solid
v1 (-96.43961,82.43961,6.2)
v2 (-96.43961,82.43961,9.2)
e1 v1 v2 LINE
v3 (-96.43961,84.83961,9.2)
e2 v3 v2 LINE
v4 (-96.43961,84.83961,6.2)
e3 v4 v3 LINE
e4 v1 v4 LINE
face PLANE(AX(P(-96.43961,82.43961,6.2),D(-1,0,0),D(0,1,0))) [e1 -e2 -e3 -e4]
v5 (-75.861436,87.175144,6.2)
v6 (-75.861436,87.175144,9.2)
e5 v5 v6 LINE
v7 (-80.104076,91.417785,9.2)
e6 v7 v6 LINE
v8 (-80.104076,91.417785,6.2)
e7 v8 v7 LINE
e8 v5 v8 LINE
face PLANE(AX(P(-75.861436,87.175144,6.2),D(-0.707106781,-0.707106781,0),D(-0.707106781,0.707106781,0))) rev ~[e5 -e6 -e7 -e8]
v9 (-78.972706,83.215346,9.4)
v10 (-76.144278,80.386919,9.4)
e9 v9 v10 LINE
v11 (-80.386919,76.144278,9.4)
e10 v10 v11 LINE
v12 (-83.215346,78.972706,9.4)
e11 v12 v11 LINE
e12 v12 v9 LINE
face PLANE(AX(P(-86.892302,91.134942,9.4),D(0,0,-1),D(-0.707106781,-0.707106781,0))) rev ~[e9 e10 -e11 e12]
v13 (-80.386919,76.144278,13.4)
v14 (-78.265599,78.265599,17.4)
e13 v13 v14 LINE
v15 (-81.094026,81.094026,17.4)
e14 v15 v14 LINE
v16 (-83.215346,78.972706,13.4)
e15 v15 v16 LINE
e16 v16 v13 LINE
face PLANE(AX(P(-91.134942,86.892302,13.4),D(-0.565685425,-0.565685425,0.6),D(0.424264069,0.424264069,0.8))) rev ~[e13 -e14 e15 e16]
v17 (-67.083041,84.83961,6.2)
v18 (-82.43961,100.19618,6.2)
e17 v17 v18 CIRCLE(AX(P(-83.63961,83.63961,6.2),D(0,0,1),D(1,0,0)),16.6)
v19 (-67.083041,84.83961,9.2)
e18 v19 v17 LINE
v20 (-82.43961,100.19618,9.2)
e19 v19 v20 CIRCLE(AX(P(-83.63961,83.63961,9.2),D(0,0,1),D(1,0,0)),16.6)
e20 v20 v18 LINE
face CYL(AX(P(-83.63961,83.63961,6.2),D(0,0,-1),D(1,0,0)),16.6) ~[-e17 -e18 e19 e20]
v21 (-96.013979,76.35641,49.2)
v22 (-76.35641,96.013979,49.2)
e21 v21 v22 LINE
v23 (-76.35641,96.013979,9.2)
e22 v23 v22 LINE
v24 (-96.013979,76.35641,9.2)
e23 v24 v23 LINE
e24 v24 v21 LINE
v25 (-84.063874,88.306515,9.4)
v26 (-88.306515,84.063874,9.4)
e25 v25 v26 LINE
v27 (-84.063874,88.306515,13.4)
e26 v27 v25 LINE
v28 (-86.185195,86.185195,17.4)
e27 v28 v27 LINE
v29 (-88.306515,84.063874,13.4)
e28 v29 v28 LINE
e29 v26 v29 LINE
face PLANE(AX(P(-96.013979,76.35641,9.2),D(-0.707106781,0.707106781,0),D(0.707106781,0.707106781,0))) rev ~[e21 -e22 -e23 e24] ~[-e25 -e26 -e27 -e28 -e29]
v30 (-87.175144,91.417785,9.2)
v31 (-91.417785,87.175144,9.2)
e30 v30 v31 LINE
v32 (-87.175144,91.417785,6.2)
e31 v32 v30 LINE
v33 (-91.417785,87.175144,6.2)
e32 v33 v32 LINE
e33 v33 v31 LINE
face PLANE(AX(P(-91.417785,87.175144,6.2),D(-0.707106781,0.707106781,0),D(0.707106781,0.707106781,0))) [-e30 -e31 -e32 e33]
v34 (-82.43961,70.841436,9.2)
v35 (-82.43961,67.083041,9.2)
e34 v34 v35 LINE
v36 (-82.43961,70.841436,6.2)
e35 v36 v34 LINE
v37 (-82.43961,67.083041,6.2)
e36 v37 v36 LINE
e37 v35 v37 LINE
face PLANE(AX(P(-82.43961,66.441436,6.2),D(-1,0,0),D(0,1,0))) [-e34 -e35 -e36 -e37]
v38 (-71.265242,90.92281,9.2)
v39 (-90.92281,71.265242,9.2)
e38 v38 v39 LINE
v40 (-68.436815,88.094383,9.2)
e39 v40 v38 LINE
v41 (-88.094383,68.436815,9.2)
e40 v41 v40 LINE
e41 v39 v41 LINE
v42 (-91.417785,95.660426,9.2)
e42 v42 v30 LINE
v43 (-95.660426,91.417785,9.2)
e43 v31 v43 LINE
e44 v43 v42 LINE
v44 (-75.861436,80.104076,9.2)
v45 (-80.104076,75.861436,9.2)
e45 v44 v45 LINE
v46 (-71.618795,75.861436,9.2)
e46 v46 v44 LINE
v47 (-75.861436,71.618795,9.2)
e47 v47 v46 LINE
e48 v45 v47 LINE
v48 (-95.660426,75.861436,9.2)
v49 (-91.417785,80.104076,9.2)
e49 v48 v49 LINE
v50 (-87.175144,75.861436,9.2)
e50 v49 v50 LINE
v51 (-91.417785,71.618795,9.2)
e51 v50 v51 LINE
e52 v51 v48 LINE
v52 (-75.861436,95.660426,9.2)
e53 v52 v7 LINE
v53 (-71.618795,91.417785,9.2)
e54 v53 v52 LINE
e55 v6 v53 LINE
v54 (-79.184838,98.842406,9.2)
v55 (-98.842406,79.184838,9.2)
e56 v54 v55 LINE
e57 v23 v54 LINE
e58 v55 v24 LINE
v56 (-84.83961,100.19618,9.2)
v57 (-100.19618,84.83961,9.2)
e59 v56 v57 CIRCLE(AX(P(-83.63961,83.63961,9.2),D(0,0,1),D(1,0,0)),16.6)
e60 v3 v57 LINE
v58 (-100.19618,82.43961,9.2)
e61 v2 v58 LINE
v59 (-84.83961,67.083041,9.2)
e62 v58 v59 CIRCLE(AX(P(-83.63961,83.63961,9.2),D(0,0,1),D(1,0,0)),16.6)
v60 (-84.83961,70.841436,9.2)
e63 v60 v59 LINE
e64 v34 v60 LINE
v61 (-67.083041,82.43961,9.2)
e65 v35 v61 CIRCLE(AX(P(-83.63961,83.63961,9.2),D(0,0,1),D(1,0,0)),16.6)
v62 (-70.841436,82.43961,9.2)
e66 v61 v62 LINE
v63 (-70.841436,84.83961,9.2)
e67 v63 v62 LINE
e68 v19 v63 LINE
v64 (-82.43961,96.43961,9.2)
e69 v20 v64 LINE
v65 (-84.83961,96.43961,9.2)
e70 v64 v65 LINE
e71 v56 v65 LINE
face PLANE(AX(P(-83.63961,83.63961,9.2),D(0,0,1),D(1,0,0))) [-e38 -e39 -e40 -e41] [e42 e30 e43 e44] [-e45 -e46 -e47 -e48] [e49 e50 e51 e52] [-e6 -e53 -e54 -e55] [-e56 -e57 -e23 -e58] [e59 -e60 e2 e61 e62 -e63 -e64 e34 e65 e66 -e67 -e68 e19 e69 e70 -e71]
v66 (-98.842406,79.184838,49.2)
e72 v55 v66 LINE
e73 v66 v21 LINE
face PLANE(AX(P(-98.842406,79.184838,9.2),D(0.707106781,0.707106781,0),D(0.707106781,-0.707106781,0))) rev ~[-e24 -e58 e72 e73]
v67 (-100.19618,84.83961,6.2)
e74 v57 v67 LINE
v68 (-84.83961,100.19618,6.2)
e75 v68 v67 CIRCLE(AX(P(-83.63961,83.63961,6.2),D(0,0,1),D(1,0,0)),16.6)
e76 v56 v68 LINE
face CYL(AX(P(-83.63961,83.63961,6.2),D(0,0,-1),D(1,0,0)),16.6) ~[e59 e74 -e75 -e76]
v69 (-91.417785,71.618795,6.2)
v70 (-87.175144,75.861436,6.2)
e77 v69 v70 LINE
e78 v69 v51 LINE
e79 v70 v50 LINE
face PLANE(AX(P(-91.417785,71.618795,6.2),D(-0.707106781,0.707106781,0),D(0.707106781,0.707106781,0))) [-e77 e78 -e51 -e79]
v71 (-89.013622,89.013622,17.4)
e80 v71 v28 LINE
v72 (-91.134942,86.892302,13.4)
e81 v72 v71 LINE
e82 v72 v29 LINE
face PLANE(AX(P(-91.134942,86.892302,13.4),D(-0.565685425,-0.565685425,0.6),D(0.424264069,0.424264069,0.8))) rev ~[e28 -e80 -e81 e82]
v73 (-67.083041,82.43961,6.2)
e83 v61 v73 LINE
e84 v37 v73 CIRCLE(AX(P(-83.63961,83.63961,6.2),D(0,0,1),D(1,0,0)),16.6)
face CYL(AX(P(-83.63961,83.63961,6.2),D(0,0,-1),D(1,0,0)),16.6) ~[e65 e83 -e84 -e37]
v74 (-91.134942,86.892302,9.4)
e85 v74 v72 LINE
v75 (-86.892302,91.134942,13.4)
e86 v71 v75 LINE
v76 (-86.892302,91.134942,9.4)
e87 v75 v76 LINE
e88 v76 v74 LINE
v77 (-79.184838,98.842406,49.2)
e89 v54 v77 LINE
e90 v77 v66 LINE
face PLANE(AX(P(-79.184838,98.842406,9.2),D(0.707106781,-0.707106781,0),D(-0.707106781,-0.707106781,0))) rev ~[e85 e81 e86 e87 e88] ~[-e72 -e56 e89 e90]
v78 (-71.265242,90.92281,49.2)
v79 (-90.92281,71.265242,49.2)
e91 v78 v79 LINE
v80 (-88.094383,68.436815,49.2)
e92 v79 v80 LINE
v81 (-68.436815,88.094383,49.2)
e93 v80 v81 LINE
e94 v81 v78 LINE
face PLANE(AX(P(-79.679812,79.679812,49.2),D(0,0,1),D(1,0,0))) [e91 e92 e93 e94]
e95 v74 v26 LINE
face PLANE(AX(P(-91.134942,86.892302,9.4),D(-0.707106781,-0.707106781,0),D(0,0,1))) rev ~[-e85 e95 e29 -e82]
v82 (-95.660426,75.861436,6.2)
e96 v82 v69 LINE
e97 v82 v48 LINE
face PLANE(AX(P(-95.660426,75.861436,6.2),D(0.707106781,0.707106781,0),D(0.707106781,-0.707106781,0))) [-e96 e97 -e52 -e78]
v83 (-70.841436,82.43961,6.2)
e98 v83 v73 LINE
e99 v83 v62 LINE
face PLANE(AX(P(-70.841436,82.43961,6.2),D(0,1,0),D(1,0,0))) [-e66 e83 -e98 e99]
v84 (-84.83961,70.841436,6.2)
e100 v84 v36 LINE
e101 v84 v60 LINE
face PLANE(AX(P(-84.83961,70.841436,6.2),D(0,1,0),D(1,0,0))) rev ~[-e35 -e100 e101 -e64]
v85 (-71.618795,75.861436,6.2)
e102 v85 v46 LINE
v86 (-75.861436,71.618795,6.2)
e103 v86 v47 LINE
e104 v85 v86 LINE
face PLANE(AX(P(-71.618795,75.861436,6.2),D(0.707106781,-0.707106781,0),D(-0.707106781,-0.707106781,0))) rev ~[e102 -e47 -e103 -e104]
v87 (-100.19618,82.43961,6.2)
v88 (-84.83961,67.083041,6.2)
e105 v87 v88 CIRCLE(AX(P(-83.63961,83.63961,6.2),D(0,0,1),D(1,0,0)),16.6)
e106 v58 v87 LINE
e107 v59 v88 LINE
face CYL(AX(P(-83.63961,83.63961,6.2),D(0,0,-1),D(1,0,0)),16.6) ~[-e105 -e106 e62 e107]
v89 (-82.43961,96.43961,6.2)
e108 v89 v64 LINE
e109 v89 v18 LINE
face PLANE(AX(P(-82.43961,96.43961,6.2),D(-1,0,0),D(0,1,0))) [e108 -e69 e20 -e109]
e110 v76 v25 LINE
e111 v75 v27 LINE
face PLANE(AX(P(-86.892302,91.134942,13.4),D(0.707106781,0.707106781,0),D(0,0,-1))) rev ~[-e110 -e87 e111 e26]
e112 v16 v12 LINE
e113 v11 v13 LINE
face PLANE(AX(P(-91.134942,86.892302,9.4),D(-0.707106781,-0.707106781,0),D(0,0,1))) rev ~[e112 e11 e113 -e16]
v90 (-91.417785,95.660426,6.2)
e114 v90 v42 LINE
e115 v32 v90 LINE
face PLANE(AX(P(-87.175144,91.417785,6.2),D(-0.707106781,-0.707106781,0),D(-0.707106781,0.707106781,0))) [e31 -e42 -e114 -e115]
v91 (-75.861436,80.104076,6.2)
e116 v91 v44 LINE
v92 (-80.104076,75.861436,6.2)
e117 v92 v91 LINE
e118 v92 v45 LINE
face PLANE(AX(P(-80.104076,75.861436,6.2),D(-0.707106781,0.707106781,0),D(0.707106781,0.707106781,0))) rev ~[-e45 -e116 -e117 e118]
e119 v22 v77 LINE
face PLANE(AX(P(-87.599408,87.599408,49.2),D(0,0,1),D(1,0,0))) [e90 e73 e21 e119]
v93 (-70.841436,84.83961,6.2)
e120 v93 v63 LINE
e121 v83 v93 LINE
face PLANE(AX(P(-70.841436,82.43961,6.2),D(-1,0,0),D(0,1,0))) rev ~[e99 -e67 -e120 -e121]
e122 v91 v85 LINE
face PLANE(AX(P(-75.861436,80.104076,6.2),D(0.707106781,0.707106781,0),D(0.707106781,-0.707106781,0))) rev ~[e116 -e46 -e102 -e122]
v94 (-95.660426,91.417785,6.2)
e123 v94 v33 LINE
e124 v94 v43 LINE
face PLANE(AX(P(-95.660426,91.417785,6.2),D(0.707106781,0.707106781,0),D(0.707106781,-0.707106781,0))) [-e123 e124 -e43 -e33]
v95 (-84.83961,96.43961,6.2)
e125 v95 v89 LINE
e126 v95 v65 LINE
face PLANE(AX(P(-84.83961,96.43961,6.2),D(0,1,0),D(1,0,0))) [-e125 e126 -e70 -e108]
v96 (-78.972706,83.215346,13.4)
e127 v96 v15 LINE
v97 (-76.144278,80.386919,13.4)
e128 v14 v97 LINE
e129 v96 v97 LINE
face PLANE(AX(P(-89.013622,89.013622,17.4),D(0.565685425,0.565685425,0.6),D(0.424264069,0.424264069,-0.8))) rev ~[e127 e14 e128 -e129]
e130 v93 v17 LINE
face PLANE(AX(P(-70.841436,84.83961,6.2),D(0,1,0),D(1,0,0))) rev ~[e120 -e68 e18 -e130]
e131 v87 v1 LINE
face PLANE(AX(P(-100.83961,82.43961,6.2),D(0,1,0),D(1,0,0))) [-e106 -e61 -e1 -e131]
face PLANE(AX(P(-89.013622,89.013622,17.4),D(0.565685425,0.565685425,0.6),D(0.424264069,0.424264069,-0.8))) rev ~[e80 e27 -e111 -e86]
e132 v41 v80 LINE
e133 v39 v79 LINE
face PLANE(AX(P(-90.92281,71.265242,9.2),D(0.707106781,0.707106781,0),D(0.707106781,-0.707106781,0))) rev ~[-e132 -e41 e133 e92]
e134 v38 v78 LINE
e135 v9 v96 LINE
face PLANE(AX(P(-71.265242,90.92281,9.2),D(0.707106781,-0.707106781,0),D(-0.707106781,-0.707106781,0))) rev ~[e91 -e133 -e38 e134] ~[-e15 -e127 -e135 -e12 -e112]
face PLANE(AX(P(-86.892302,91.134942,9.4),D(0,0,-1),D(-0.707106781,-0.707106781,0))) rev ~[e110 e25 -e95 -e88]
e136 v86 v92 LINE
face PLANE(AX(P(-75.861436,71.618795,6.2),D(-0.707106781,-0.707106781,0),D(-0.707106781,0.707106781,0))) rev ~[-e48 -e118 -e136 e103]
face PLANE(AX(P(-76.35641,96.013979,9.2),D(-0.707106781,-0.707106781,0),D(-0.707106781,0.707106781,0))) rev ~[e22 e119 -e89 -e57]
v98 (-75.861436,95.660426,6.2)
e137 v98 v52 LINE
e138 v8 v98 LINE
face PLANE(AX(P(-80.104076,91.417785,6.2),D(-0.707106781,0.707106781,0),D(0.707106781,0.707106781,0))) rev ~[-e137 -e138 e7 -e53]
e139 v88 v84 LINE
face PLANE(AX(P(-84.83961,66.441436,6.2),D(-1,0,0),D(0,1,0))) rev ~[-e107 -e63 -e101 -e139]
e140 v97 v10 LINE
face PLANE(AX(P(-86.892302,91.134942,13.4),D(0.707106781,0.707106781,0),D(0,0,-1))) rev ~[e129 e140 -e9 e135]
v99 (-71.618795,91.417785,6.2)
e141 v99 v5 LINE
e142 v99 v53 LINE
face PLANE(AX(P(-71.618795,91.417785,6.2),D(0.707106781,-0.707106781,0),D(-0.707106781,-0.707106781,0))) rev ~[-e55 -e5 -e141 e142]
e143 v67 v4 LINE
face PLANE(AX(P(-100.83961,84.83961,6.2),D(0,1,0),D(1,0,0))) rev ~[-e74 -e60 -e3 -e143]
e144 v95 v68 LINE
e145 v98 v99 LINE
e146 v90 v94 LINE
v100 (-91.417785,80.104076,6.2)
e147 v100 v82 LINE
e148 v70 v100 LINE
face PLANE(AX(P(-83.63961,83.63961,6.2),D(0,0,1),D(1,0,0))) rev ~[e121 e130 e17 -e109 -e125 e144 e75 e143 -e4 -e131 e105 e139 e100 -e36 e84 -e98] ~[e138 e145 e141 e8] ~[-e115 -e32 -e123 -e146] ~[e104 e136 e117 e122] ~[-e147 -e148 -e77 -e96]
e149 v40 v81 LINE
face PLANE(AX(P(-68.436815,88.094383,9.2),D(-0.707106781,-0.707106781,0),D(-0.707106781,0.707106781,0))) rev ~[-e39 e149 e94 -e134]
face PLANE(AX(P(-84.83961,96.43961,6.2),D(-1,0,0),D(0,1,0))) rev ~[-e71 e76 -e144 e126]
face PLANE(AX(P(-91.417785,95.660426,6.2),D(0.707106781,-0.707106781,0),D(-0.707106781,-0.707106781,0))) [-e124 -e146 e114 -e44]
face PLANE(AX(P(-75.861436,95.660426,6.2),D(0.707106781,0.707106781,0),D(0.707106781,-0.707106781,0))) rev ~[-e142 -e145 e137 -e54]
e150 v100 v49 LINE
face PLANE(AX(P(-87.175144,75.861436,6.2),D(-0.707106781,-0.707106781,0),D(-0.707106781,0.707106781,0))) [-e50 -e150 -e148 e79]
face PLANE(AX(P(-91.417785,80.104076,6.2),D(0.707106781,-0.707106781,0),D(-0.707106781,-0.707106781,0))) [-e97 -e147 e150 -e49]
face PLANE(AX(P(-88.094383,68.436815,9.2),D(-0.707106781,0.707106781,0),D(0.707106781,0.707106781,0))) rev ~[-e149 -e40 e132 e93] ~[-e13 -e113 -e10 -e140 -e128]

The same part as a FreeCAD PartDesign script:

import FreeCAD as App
import Part
import Sketcher
from FreeCAD import Vector
Q = App.Units.Quantity


def add_polygon(sketch, points):
    """Adds a closed chain of lines whose ends are joined by coincident constraints."""
    first, n = sketch.GeometryCount, len(points)
    for a, b in zip(points, points[1:] + points[:1]):
        sketch.addGeometry(Part.LineSegment(App.Vector(*a, 0), App.Vector(*b, 0)), False)
    for i in range(n):
        sketch.addConstraint(Sketcher.Constraint("Coincident", first + i, 2, first + (i + 1) % n, 1))

doc = App.newDocument("Part")
body = doc.addObject("PartDesign::Body", "Body")

sketch1 = body.newObject("Sketcher::SketchObject", "Sketch")
sketch1.AttachmentSupport = (doc.getObject("XY_Plane"), [""])
sketch1.MapMode = "FlatFace"
sketch1.AttachmentOffset = App.Placement(Vector(0, 0, 6.2), App.Rotation())
sketch1.addGeometry(Part.Circle(Vector(-84, 84, 0), Vector(0, 0, 1), 17), False)
sketch1.addConstraint([
    Sketcher.Constraint("Diameter", 0, 33.2),
    Sketcher.Constraint("DistanceX", 0, 3, -1, 1, 83.63961),
    Sketcher.Constraint("DistanceY", -1, 1, 0, 3, 83.63961),
])
pad1 = body.newObject("PartDesign::Pad", "Pad")
pad1.Profile = sketch1
pad1.Length = 3

sketch2 = body.newObject("Sketcher::SketchObject", "Sketch001")
sketch2.AttachmentSupport = (doc.getObject("XY_Plane"), [""])
sketch2.MapMode = "FlatFace"
sketch2.AttachmentOffset = App.Placement(Vector(0, 0, 6.2), App.Rotation())
add_polygon(sketch2, [(-91.4, 95.7), (-95.7, 91.4), (-91.4, 87.2), (-87.2, 91.4)])
add_polygon(sketch2, [(-75.9, 95.7), (-80.1, 91.4), (-75.9, 87.2), (-71.6, 91.4)])
add_polygon(sketch2, [(-71.6, 75.9), (-75.9, 80.1), (-80.1, 75.9), (-75.9, 71.6)])
add_polygon(sketch2, [(-87.2, 75.9), (-91.4, 80.1), (-95.7, 75.9), (-91.4, 71.6)])
add_polygon(sketch2, [(-100.8, 84.8), (-100.8, 82.4), (-96.4, 82.4), (-96.4, 84.8)])
add_polygon(sketch2, [(-84.8, 70.8), (-84.8, 66.4), (-82.4, 66.4), (-82.4, 70.8)])
add_polygon(sketch2, [(-70.8, 84.8), (-70.8, 82.4), (-66.4, 82.4), (-66.4, 84.8)])
add_polygon(sketch2, [(-84.8, 100.8), (-84.8, 96.4), (-82.4, 96.4), (-82.4, 100.8)])
sketch2.addConstraint([
    Sketcher.Constraint("Vertical", 16),
    Sketcher.Constraint("Horizontal", 17),
    Sketcher.Constraint("Vertical", 18),
    Sketcher.Constraint("Horizontal", 19),
    Sketcher.Constraint("Vertical", 20),
    Sketcher.Constraint("Horizontal", 21),
    Sketcher.Constraint("Vertical", 22),
    Sketcher.Constraint("Horizontal", 23),
    Sketcher.Constraint("Vertical", 24),
    Sketcher.Constraint("Horizontal", 25),
    Sketcher.Constraint("Vertical", 26),
    Sketcher.Constraint("Horizontal", 27),
    Sketcher.Constraint("Vertical", 28),
    Sketcher.Constraint("Horizontal", 29),
    Sketcher.Constraint("Vertical", 30),
    Sketcher.Constraint("Horizontal", 31),
    Sketcher.Constraint("Perpendicular", 0, 1),
    Sketcher.Constraint("Perpendicular", 1, 2),
    Sketcher.Constraint("Perpendicular", 2, 3),
    Sketcher.Constraint("Perpendicular", 3, 4),
    Sketcher.Constraint("Perpendicular", 4, 5),
    Sketcher.Constraint("Perpendicular", 5, 6),
    Sketcher.Constraint("Perpendicular", 6, 7),
    Sketcher.Constraint("Parallel", 7, 8),
    Sketcher.Constraint("Perpendicular", 8, 9),
    Sketcher.Constraint("Perpendicular", 9, 10),
    Sketcher.Constraint("Perpendicular", 10, 11),
    Sketcher.Constraint("Perpendicular", 11, 12),
    Sketcher.Constraint("Perpendicular", 12, 13),
    Sketcher.Constraint("Perpendicular", 13, 14),
    Sketcher.Constraint("Perpendicular", 14, 15),
    Sketcher.Constraint("Horizontal", 0, 2, 2, 2),
    Sketcher.Constraint("Horizontal", 2, 2, 4, 2),
    Sketcher.Constraint("Horizontal", 1, 2, 5, 2),
    Sketcher.Constraint("Horizontal", 4, 2, 6, 2),
    Sketcher.Constraint("Horizontal", 9, 2, 11, 2),
    Sketcher.Constraint("Horizontal", 8, 2, 12, 2),
    Sketcher.Constraint("Horizontal", 11, 2, 13, 2),
    Sketcher.Constraint("Horizontal", 10, 2, 14, 2),
    Sketcher.Constraint("Horizontal", 17, 2, 24, 2),
    Sketcher.Constraint("Horizontal", 19, 2, 26, 2),
    Sketcher.Constraint("Vertical", 1, 2, 3, 2),
    Sketcher.Constraint("Vertical", 7, 2, 8, 2),
    Sketcher.Constraint("Vertical", 4, 2, 9, 2),
    Sketcher.Constraint("Vertical", 3, 2, 12, 2),
    Sketcher.Constraint("Vertical", 23, 2, 28, 2),
    Sketcher.Constraint("Vertical", 22, 2, 29, 2),
    Sketcher.Constraint("Equal", 19, 25),
    Sketcher.Constraint("Equal", 31, 16),
    Sketcher.Constraint("Equal", 27, 20),
    Sketcher.Constraint("Equal", 22, 28),
    Sketcher.Constraint("Distance", 0, 6.0),
    Sketcher.Constraint("DistanceX", 17, 1, 17, 2, 4.4),
    Sketcher.Constraint("DistanceX", 21, 1, 21, 2, 2.4),
    Sketcher.Constraint("DistanceY", 20, 2, 15, 2, 9.42),
    Sketcher.Constraint("DistanceX", 8, 2, 24, 2, 5.02),
    Sketcher.Constraint("DistanceX", 16, 2, -1, 1, 100.83961),
    Sketcher.Constraint("DistanceY", -1, 1, 16, 2, 82.43961),
    Sketcher.Constraint("DistanceX", 20, 2, -1, 1, 84.83961),
    Sketcher.Constraint("DistanceY", -1, 1, 28, 2, 96.43961),
    Sketcher.Constraint("DistanceX", 1, 2, 4, 2, 11.313708),
    Sketcher.Constraint("DistanceY", 8, 2, 6, 2, 11.313708),
    Sketcher.Constraint("DistanceX", 0, 2, -1, 1, 95.660426),
    Sketcher.Constraint("DistanceY", -1, 1, 0, 2, 91.417785),
])
pocket1 = body.newObject("PartDesign::Pocket", "Pocket")
pocket1.Profile = sketch2
pocket1.Length = 5
pocket1.Reversed = True

sketch3 = body.newObject("Sketcher::SketchObject", "Sketch002")
sketch3.AttachmentSupport = (doc.getObject("XY_Plane"), [""])
sketch3.MapMode = "FlatFace"
sketch3.AttachmentOffset = App.Placement(Vector(0, 0, 9.2), App.Rotation())
add_polygon(sketch3, [(-79.2, 98.8), (-98.8, 79.2), (-96, 76.4), (-76.4, 96)])
add_polygon(sketch3, [(-71.3, 90.9), (-90.9, 71.3), (-88.1, 68.4), (-68.4, 88.1)])
sketch3.addConstraint([
    Sketcher.Constraint("Perpendicular", 0, 1),
    Sketcher.Constraint("Perpendicular", 1, 2),
    Sketcher.Constraint("Perpendicular", 2, 3),
    Sketcher.Constraint("Perpendicular", 3, 4),
    Sketcher.Constraint("Perpendicular", 4, 5),
    Sketcher.Constraint("Perpendicular", 5, 6),
    Sketcher.Constraint("Perpendicular", 6, 7),
    Sketcher.Constraint("Equal", 2, 4),
    Sketcher.Constraint("Equal", 3, 5),
    Sketcher.Constraint("Angle", 0, Q("-135 deg")),
    Sketcher.Constraint("Distance", 1, 4.0),
    Sketcher.Constraint("Distance", 0, 27.8),
    Sketcher.Constraint("DistanceX", 4, 2, 2, 2, 14.5664),
    Sketcher.Constraint("DistanceX", 1, 2, -1, 1, 96.013979),
    Sketcher.Constraint("DistanceY", -1, 1, 1, 2, 76.35641),
    Sketcher.Constraint("DistanceY", -1, 1, 4, 2, 71.265242),
])
pad2 = body.newObject("PartDesign::Pad", "Pad001")
pad2.Profile = sketch3
pad2.Length = 40

sketch4 = body.newObject("Sketcher::SketchObject", "Sketch003")
sketch4.Placement = App.Placement(Vector(-89.013622, 89.013622, 0), App.Rotation(Vector(-0.707106781, -0.707106781, 0), Vector(0, 0, 0.999999999), Vector(-0.707106781, 0.707106781, 0), "ZXY"))
add_polygon(sketch4, [(-3, 9.4), (3, 9.4), (3, 13.4), (0, 17.4), (-3, 13.4)])
sketch4.addConstraint([
    Sketcher.Constraint("Horizontal", 0),
    Sketcher.Constraint("Vertical", 1),
    Sketcher.Constraint("Vertical", 4),
    Sketcher.Constraint("Symmetric", 1, 2, 3, 2, -2),
    Sketcher.Constraint("PointOnObject", 2, 2, -2),
    Sketcher.Constraint("DistanceX", 0, 1, 0, 2, 6.0),
    Sketcher.Constraint("DistanceY", 1, 1, 1, 2, 4.0),
    Sketcher.Constraint("Distance", 2, 5.0),
    Sketcher.Constraint("DistanceY", -1, 1, 0, 2, 9.4),
])
pocket2 = body.newObject("PartDesign::Pocket", "Pocket001")
pocket2.Profile = sketch4
pocket2.Type = "ThroughAll"

doc.recompute()
